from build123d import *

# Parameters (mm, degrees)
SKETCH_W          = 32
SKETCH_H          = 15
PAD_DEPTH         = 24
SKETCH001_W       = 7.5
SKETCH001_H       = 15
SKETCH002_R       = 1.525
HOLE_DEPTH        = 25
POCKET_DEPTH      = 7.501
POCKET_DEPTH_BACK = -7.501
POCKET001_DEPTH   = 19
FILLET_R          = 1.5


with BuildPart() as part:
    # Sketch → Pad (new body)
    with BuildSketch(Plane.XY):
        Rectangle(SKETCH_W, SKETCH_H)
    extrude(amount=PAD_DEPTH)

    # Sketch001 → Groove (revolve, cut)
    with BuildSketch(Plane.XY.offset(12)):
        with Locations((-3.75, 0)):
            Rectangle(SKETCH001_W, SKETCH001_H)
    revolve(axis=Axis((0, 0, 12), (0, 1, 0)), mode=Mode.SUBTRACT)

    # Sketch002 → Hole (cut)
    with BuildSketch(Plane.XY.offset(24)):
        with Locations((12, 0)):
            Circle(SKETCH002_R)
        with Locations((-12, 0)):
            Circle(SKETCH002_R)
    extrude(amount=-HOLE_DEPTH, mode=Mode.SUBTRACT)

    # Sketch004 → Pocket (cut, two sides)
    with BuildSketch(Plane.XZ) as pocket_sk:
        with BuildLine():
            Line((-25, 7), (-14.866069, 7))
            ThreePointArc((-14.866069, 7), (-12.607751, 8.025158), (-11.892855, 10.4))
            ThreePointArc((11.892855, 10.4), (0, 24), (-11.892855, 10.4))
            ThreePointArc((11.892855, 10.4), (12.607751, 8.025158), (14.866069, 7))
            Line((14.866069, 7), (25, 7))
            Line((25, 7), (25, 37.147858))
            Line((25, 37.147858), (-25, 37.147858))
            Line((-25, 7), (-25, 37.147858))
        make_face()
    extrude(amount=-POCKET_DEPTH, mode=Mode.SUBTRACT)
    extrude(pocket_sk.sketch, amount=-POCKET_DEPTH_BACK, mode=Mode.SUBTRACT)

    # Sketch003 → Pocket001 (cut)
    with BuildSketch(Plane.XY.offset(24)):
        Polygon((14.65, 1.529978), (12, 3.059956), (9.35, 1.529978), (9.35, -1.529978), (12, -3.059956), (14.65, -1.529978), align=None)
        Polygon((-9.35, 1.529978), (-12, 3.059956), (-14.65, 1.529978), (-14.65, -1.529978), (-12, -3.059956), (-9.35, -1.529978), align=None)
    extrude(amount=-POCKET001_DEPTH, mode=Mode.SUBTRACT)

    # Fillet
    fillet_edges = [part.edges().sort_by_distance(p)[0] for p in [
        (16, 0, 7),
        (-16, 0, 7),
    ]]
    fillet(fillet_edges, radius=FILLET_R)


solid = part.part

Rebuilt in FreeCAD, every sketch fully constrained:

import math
import FreeCAD as App
import Part
import Sketcher
from FreeCAD import Vector
Q = App.Units.Quantity


def edges_at(feature, points):
    """Names of the edges that pass closest to the given points."""
    edges = feature.Shape.Edges
    near = lambda p: min(range(len(edges)), key=lambda i: edges[i].distToShape(Part.Vertex(*p))[0])
    return sorted({f"Edge{near(p) + 1}" for p in points})

doc = App.newDocument("Part")
body = doc.addObject("PartDesign::Body", "Body")

# Sketch on XY plane
sketch1 = body.newObject("Sketcher::SketchObject", "Sketch")
sketch1.AttachmentSupport = (doc.getObject("XY_Plane"), [""])
sketch1.MapMode = "FlatFace"
sketch1.addGeometry([
    Part.LineSegment(Vector(-16, 8, 0), Vector(-16, -8, 0)),
    Part.LineSegment(Vector(-16, -8, 0), Vector(16, -8, 0)),
    Part.LineSegment(Vector(16, -8, 0), Vector(16, 8, 0)),
    Part.LineSegment(Vector(16, 8, 0), Vector(-16, 8, 0)),
], False)
sketch1.addConstraint([
    Sketcher.Constraint("Coincident", 0, 2, 1, 1),
    Sketcher.Constraint("Coincident", 1, 2, 2, 1),
    Sketcher.Constraint("Coincident", 2, 2, 3, 1),
    Sketcher.Constraint("Coincident", 3, 2, 0, 1),
    Sketcher.Constraint("Vertical", 0),
    Sketcher.Constraint("Horizontal", 1),
    Sketcher.Constraint("Vertical", 2),
    Sketcher.Constraint("Horizontal", 3),
    Sketcher.Constraint("Symmetric", 0, 2, 2, 2, -1, 1),
    Sketcher.Constraint("DistanceX", 1, 1, 1, 2, Q("32 mm")),
    Sketcher.Constraint("DistanceY", 0, 2, 0, 1, Q("15 mm")),
])
pad1 = body.newObject("PartDesign::Pad", "Pad")
pad1.Profile = sketch1
pad1.Length = 24

# Sketch on XY plane
sketch2 = body.newObject("Sketcher::SketchObject", "Sketch001")
sketch2.AttachmentSupport = (doc.getObject("XY_Plane"), [""])
sketch2.MapMode = "FlatFace"
sketch2.AttachmentOffset = App.Placement(Vector(0, 0, 12), App.Rotation())
sketch2.addGeometry([
    Part.LineSegment(Vector(-8, 8, 0), Vector(-8, -8, 0)),
    Part.LineSegment(Vector(-8, -8, 0), Vector(0, -8, 0)),
    Part.LineSegment(Vector(0, -8, 0), Vector(0, 8, 0)),
    Part.LineSegment(Vector(0, 8, 0), Vector(-8, 8, 0)),
], False)
sketch2.addConstraint([
    Sketcher.Constraint("Coincident", 0, 2, 1, 1),
    Sketcher.Constraint("Coincident", 1, 2, 2, 1),
    Sketcher.Constraint("Coincident", 2, 2, 3, 1),
    Sketcher.Constraint("Coincident", 3, 2, 0, 1),
    Sketcher.Constraint("Vertical", 0),
    Sketcher.Constraint("Horizontal", 1),
    Sketcher.Constraint("Vertical", 2),
    Sketcher.Constraint("Horizontal", 3),
    Sketcher.Constraint("Symmetric", 1, 2, 2, 2, -1, 1),
    Sketcher.Constraint("DistanceY", 0, 2, 0, 1, Q("15 mm")),
    Sketcher.Constraint("DistanceX", 1, 1, 1, 2, Q("7.5 mm")),
])
groove = body.newObject("PartDesign::Groove", "Groove")
groove.Profile = sketch2
groove.ReferenceAxis = (sketch2, ["V_Axis"])
groove.Angle = 360

# Sketch on XY plane
sketch3 = body.newObject("Sketcher::SketchObject", "Sketch002")
sketch3.AttachmentSupport = (doc.getObject("XY_Plane"), [""])
sketch3.MapMode = "FlatFace"
sketch3.AttachmentOffset = App.Placement(Vector(0, 0, 24), App.Rotation())
sketch3.addGeometry([
    Part.Circle(Vector(12, 0, 0), Vector(0, 0, 1), 1.5),
    Part.Circle(Vector(-12, 0, 0), Vector(0, 0, 1), 1.5),
], False)
sketch3.addConstraint([
    Sketcher.Constraint("Equal", 0, 1),
    Sketcher.Constraint("Symmetric", 0, 3, 1, 3, -1, 1),
    Sketcher.Constraint("PointOnObject", 0, 3, -1),
    Sketcher.Constraint("Diameter", 0, Q("3.05 mm")),
    Sketcher.Constraint("DistanceX", -1, 1, 0, 3, Q("12 mm")),
])
pocket1 = body.newObject("PartDesign::Pocket", "Pocket")
pocket1.Profile = sketch3
pocket1.Length = 25

# Sketch on XZ plane
sketch4 = body.newObject("Sketcher::SketchObject", "Sketch003")
sketch4.AttachmentSupport = (doc.getObject("XZ_Plane"), [""])
sketch4.MapMode = "FlatFace"
sketch4.addGeometry([
    Part.LineSegment(Vector(-25, 7, 0), Vector(-14.9, 7, 0)),  # 0
    Part.ArcOfCircle(Part.Circle(Vector(-14.9, 10, 0), Vector(0, 0, 1), 3), math.radians(-90), math.radians(8)),  # 1
    Part.ArcOfCircle(Part.Circle(Vector(0, 12, 0), Vector(0, 0, 1), 12), math.radians(-8), math.radians(188)),  # 2
    Part.ArcOfCircle(Part.Circle(Vector(14.9, 10, 0), Vector(0, 0, 1), 3), math.radians(172), math.radians(270)),  # 3
    Part.LineSegment(Vector(14.9, 7, 0), Vector(25, 7, 0)),  # 4
    Part.LineSegment(Vector(25, 7, 0), Vector(25, 37.1, 0)),  # 5
    Part.LineSegment(Vector(25, 37.1, 0), Vector(-25, 37.1, 0)),  # 6
    Part.LineSegment(Vector(-25, 37.1, 0), Vector(-25, 7, 0)),  # 7
], False)
sketch4.addConstraint([
    Sketcher.Constraint("Tangent", 0, 2, 1, 1),
    Sketcher.Constraint("Tangent", 1, 2, 2, 2),
    Sketcher.Constraint("Tangent", 2, 1, 3, 1),
    Sketcher.Constraint("Tangent", 3, 2, 4, 1),
    Sketcher.Constraint("Coincident", 4, 2, 5, 1),
    Sketcher.Constraint("Coincident", 5, 2, 6, 1),
    Sketcher.Constraint("Coincident", 6, 2, 7, 1),
    Sketcher.Constraint("Coincident", 7, 2, 0, 1),
    Sketcher.Constraint("Horizontal", 0),
    Sketcher.Constraint("Horizontal", 4),
    Sketcher.Constraint("Vertical", 5),
    Sketcher.Constraint("Horizontal", 6),
    Sketcher.Constraint("Vertical", 7),
    Sketcher.Constraint("Equal", 1, 3),
    Sketcher.Constraint("Symmetric", 1, 3, 3, 3, -2),
    Sketcher.Constraint("Equal", 0, 4),
    Sketcher.Constraint("Radius", 1, Q("3 mm")),
    Sketcher.Constraint("Radius", 2, Q("12 mm")),
    Sketcher.Constraint("DistanceX", 6, 2, 6, 1, Q("50 mm")),
    Sketcher.Constraint("DistanceY", -1, 1, 1, 3, Q("10 mm")),
    Sketcher.Constraint("DistanceY", -1, 1, 2, 3, Q("12 mm")),
    Sketcher.Constraint("DistanceY", 5, 1, 5, 2, Q("30.147858 mm")),
])
pocket2 = body.newObject("PartDesign::Pocket", "Pocket001")
pocket2.Profile = sketch4
pocket2.Type = "ThroughAll"
pocket2.Midplane = True

# Sketch on XY plane
sketch5 = body.newObject("Sketcher::SketchObject", "Sketch004")
sketch5.AttachmentSupport = (doc.getObject("XY_Plane"), [""])
sketch5.MapMode = "FlatFace"
sketch5.AttachmentOffset = App.Placement(Vector(0, 0, 24), App.Rotation())
sketch5.addGeometry([
    Part.LineSegment(Vector(14.7, 1.5, 0), Vector(12, 3.1, 0)),  # 0
    Part.LineSegment(Vector(12, 3.1, 0), Vector(9.3, 1.5, 0)),  # 1
    Part.LineSegment(Vector(9.3, 1.5, 0), Vector(9.3, -1.5, 0)),  # 2
    Part.LineSegment(Vector(9.3, -1.5, 0), Vector(12, -3.1, 0)),  # 3
    Part.LineSegment(Vector(12, -3.1, 0), Vector(14.7, -1.5, 0)),  # 4
    Part.LineSegment(Vector(14.7, -1.5, 0), Vector(14.7, 1.5, 0)),  # 5
    Part.LineSegment(Vector(-9.3, 1.5, 0), Vector(-12, 3.1, 0)),  # 6
    Part.LineSegment(Vector(-12, 3.1, 0), Vector(-14.7, 1.5, 0)),  # 7
    Part.LineSegment(Vector(-14.7, 1.5, 0), Vector(-14.7, -1.5, 0)),  # 8
    Part.LineSegment(Vector(-14.7, -1.5, 0), Vector(-12, -3.1, 0)),  # 9
    Part.LineSegment(Vector(-12, -3.1, 0), Vector(-9.3, -1.5, 0)),  # 10
    Part.LineSegment(Vector(-9.3, -1.5, 0), Vector(-9.3, 1.5, 0)),  # 11
], False)
sketch5.addConstraint([
    Sketcher.Constraint("Coincident", 0, 2, 1, 1),
    Sketcher.Constraint("Coincident", 1, 2, 2, 1),
    Sketcher.Constraint("Coincident", 2, 2, 3, 1),
    Sketcher.Constraint("Coincident", 3, 2, 4, 1),
    Sketcher.Constraint("Coincident", 4, 2, 5, 1),
    Sketcher.Constraint("Coincident", 5, 2, 0, 1),
    Sketcher.Constraint("Coincident", 6, 2, 7, 1),
    Sketcher.Constraint("Coincident", 7, 2, 8, 1),
    Sketcher.Constraint("Coincident", 8, 2, 9, 1),
    Sketcher.Constraint("Coincident", 9, 2, 10, 1),
    Sketcher.Constraint("Coincident", 10, 2, 11, 1),
    Sketcher.Constraint("Coincident", 11, 2, 6, 1),
    Sketcher.Constraint("Vertical", 2),
    Sketcher.Constraint("Vertical", 5),
    Sketcher.Constraint("Vertical", 8),
    Sketcher.Constraint("Vertical", 11),
    Sketcher.Constraint("Symmetric", 3, 2, 6, 2, -1, 1),
    Sketcher.Constraint("Symmetric", 4, 2, 7, 2, -1, 1),
    Sketcher.Constraint("Symmetric", 0, 2, 9, 2, -1, 1),
    Sketcher.Constraint("Symmetric", 1, 2, 10, 2, -1, 1),
    Sketcher.Constraint("Symmetric", 0, 2, 6, 2, -2),
    Sketcher.Constraint("Parallel", 0, 3),
    Sketcher.Constraint("Parallel", 1, 4),
    Sketcher.Constraint("Parallel", 3, 6),
    Sketcher.Constraint("Parallel", 6, 9),
    Sketcher.Constraint("Horizontal", 2, 2, 4, 2),
    Sketcher.Constraint("Horizontal", 1, 2, 5, 2),
    Sketcher.Constraint("Angle", 0, Q("150.000003 deg")),
    Sketcher.Constraint("DistanceX", -1, 1, 0, 2, Q("12 mm")),
    Sketcher.Constraint("DistanceX", 2, 2, 4, 2, Q("5.3 mm")),
    Sketcher.Constraint("DistanceY", 2, 2, 2, 1, Q("3.059956 mm")),
])
pocket3 = body.newObject("PartDesign::Pocket", "Pocket002")
pocket3.Profile = sketch5
pocket3.Length = 19
doc.recompute()

fillet = body.newObject("PartDesign::Fillet", "Fillet")
fillet.Base = (pocket3, edges_at(pocket3, [(16, 0, 7), (-16, 0, 7)]))
fillet.Radius = 1.5

doc.recompute()
